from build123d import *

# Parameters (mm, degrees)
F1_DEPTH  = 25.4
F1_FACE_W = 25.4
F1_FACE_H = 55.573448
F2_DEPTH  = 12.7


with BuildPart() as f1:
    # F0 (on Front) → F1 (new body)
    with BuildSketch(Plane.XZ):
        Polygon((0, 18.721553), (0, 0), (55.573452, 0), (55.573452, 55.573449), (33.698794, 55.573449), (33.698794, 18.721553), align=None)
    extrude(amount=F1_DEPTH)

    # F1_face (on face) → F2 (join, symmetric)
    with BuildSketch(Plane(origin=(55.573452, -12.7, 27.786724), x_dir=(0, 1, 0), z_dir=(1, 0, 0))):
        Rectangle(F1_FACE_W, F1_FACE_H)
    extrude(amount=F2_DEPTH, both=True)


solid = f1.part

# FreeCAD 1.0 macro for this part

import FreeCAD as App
import Part
import Sketcher
from FreeCAD import Vector
Q = App.Units.Quantity

doc = App.newDocument("Part")
params = doc.addObject("Spreadsheet::Sheet", "Params")
for row, (alias, value) in enumerate([
    ("pad1_length", "1 in"),
    ("sketch2_width", "1 in"),
    ("pad2_length", "1 in"),
], start=1):
    params.set(f"A{row}", alias)
    params.set(f"B{row}", "=" + value)
    params.setAlias(f"B{row}", alias)

body = doc.addObject("PartDesign::Body", "Body")

sketch1 = body.newObject("Sketcher::SketchObject", "Sketch")
sketch1.AttachmentSupport = (doc.getObject("XZ_Plane"), [""])
sketch1.MapMode = "FlatFace"
sketch1.addGeometry([
    Part.LineSegment(Vector(0, 19, 0), Vector(0, 0, 0)),
    Part.LineSegment(Vector(0, 0, 0), Vector(56, 0, 0)),
    Part.LineSegment(Vector(56, 0, 0), Vector(56, 56, 0)),
    Part.LineSegment(Vector(56, 56, 0), Vector(34, 56, 0)),
    Part.LineSegment(Vector(34, 56, 0), Vector(34, 19, 0)),
    Part.LineSegment(Vector(34, 19, 0), Vector(0, 19, 0)),
], False)
sketch1.addConstraint([
    Sketcher.Constraint("Coincident", 0, 2, 1, 1),
    Sketcher.Constraint("Coincident", 1, 2, 2, 1),
    Sketcher.Constraint("Coincident", 2, 2, 3, 1),
    Sketcher.Constraint("Coincident", 3, 2, 4, 1),
    Sketcher.Constraint("Coincident", 4, 2, 5, 1),
    Sketcher.Constraint("Coincident", 5, 2, 0, 1),
    Sketcher.Constraint("Vertical", 0),
    Sketcher.Constraint("Horizontal", 1),
    Sketcher.Constraint("Vertical", 2),
    Sketcher.Constraint("Horizontal", 3),
    Sketcher.Constraint("Vertical", 4),
    Sketcher.Constraint("Horizontal", 5),
    Sketcher.Constraint("Coincident", 0, 2, -1, 1),
    Sketcher.Constraint("DistanceX", 3, 2, 3, 1, Q("21.874658 mm")),
    Sketcher.Constraint("DistanceY", 2, 1, 2, 2, Q("55.573449 mm")),
    Sketcher.Constraint("DistanceX", 1, 1, 1, 2, Q("55.573452 mm")),
    Sketcher.Constraint("DistanceY", 0, 2, 0, 1, Q("18.721553 mm")),
])
pad1 = body.newObject("PartDesign::Pad", "Pad")
pad1.Profile = sketch1
pad1.setExpression("Length", "Params.pad1_length")

sketch2 = body.newObject("Sketcher::SketchObject", "Sketch001")
sketch2.AttachmentSupport = (doc.getObject("YZ_Plane"), [""])
sketch2.MapMode = "FlatFace"
sketch2.AttachmentOffset = App.Placement(Vector(0, 0, 55.573452), App.Rotation())
sketch2.addGeometry([
    Part.LineSegment(Vector(-25, 56, 0), Vector(-25, 0, 0)),
    Part.LineSegment(Vector(-25, 0, 0), Vector(0, 0, 0)),
    Part.LineSegment(Vector(0, 0, 0), Vector(0, 56, 0)),
    Part.LineSegment(Vector(0, 56, 0), Vector(-25, 56, 0)),
], False)
sketch2.addConstraint([
    Sketcher.Constraint("Coincident", 0, 2, 1, 1),
    Sketcher.Constraint("Coincident", 1, 2, 2, 1),
    Sketcher.Constraint("Coincident", 2, 2, 3, 1),
    Sketcher.Constraint("Coincident", 3, 2, 0, 1),
    Sketcher.Constraint("Vertical", 0),
    Sketcher.Constraint("Horizontal", 1),
    Sketcher.Constraint("Vertical", 2),
    Sketcher.Constraint("Horizontal", 3),
    Sketcher.Constraint("Coincident", 1, 2, -1, 1),
    Sketcher.Constraint("DistanceX", 1, 1, 1, 2, Q("1 in")),
    Sketcher.Constraint("DistanceY", 0, 2, 0, 1, Q("55.573448 mm")),
])
sketch2.setExpression("Constraints[9]", "Params.sketch2_width")
pad2 = body.newObject("PartDesign::Pad", "Pad001")
pad2.Profile = sketch2
pad2.setExpression("Length", "Params.pad2_length")
pad2.Midplane = True

doc.recompute()
